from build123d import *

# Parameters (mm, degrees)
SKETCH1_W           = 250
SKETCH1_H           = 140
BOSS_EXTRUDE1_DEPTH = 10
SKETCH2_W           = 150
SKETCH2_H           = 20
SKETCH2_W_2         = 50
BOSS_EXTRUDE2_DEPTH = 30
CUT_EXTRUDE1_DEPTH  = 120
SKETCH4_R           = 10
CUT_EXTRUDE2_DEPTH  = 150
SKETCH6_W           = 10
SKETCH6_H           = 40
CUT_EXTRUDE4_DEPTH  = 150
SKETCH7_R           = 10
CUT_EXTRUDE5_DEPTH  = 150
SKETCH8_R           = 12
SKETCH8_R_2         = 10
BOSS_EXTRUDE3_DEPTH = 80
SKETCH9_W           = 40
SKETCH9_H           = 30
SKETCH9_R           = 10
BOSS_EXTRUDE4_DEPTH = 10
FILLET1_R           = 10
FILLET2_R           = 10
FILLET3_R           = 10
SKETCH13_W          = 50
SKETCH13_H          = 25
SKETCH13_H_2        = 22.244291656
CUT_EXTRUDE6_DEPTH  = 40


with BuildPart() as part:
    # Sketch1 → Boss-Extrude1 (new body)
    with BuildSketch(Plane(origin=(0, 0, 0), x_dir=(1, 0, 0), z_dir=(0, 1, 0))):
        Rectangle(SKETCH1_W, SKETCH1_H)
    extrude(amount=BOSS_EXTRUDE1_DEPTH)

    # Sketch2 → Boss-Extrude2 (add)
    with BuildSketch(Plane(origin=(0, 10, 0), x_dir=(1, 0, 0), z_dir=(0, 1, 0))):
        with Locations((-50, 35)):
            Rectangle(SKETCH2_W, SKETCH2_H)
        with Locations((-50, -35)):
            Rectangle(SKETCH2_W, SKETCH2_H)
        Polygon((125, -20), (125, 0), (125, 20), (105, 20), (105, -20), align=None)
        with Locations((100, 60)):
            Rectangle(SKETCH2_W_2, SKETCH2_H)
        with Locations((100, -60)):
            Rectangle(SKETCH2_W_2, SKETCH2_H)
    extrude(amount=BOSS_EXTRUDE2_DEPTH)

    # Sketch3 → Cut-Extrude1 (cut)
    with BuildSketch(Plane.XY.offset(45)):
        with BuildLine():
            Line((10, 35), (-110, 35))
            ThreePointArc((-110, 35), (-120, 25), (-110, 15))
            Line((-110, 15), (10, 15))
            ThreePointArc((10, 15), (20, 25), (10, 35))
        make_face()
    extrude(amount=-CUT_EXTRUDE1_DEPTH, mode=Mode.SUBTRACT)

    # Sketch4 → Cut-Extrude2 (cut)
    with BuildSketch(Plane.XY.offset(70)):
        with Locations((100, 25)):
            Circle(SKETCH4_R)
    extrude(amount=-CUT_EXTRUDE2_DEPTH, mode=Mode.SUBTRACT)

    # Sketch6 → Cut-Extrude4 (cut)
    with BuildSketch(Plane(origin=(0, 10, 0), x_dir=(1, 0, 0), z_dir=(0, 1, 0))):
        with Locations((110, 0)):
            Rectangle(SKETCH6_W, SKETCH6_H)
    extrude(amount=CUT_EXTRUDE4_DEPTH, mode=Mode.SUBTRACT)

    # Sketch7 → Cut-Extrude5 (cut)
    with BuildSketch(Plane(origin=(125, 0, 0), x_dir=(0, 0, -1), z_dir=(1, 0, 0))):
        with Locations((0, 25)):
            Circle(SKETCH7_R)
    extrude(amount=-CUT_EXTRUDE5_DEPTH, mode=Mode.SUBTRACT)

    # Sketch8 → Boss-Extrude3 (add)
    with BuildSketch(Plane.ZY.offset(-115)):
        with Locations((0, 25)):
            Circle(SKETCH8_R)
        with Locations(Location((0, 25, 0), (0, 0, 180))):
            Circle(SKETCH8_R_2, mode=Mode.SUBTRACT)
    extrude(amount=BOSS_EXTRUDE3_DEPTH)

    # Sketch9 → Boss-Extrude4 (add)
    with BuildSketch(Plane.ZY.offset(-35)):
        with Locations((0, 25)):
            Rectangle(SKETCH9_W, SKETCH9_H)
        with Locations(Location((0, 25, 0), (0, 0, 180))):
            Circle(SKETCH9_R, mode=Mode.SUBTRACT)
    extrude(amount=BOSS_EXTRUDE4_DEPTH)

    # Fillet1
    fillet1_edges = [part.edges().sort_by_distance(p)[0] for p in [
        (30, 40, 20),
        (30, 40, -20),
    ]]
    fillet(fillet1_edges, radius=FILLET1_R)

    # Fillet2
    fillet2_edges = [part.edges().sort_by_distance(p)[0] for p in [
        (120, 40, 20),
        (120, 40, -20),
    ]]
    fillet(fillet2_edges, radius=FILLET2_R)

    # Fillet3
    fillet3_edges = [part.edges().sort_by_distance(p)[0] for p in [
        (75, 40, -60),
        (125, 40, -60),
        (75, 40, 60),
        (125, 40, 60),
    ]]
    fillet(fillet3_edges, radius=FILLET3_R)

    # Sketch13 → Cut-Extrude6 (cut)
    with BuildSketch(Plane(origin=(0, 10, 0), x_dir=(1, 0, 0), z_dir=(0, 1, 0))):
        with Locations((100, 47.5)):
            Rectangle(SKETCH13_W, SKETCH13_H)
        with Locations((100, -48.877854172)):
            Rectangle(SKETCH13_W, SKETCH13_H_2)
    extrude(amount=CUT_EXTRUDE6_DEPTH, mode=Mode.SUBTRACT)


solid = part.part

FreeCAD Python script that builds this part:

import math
import FreeCAD as App
import Part
import Sketcher
from FreeCAD import Vector


def edges_at(feature, points):
    """Names of the edges that pass closest to the given points."""
    edges = feature.Shape.Edges
    near = lambda p: min(range(len(edges)), key=lambda i: edges[i].distToShape(Part.Vertex(*p))[0])
    return sorted({f"Edge{near(p) + 1}" for p in points})


def add_polygon(sketch, points):
    """Adds a closed chain of lines whose ends are joined by coincident constraints."""
    first, n = sketch.GeometryCount, len(points)
    for a, b in zip(points, points[1:] + points[:1]):
        sketch.addGeometry(Part.LineSegment(App.Vector(*a, 0), App.Vector(*b, 0)), False)
    for i in range(n):
        sketch.addConstraint(Sketcher.Constraint("Coincident", first + i, 2, first + (i + 1) % n, 1))

doc = App.newDocument("Part")
params = doc.addObject("Spreadsheet::Sheet", "Params")
for row, (alias, value) in enumerate([
    ("sketch1_width", "250 mm"),
    ("sketch1_height", "140 mm"),
    ("pad1_length", "10 mm"),
    ("sketch2_width", "150 mm"),
    ("sketch2_width2", "20 mm"),
    ("sketch2_width3", "50 mm"),
    ("sketch2_height", "40 mm"),
    ("pad2_length", "30 mm"),
    ("sketch3_radius", "10 mm"),
    ("sketch3_width", "120 mm"),
    ("pocket1_length", "120 mm"),
    ("sketch4_diameter", "20 mm"),
    ("pocket2_length", "150 mm"),
    ("sketch5_width", "10 mm"),
    ("sketch5_height", "40 mm"),
    ("pocket3_length", "150 mm"),
    ("sketch6_diameter", "20 mm"),
    ("pocket4_length", "150 mm"),
    ("sketch7_diameter", "24 mm"),
    ("sketch7_diameter2", "20 mm"),
    ("pad3_length", "80 mm"),
    ("sketch8_diameter", "20 mm"),
    ("sketch8_width", "30 mm"),
    ("sketch8_height", "40 mm"),
    ("pad4_length", "10 mm"),
    ("fillet_radius", "10 mm"),
    ("fillet2_radius", "10 mm"),
    ("fillet3_radius", "10 mm"),
    ("sketch9_width", "50 mm"),
    ("sketch9_height", "25 mm"),
    ("pocket5_length", "40 mm"),
], start=1):
    params.set(f"A{row}", alias)
    params.set(f"B{row}", "=" + value)
    params.setAlias(f"B{row}", alias)

body = doc.addObject("PartDesign::Body", "Body")

# Sketch on XZ plane
sketch1 = body.newObject("Sketcher::SketchObject", "Sketch")
sketch1.AttachmentSupport = (doc.getObject("XZ_Plane"), [""])
sketch1.MapMode = "FlatFace"
add_polygon(sketch1, [(-125, -70), (-125, 70), (125, 70), (125, -70)])  # lines 0-3
sketch1.addConstraint(Sketcher.Constraint("Vertical", 0))
sketch1.addConstraint(Sketcher.Constraint("Horizontal", 1))
sketch1.addConstraint(Sketcher.Constraint("Vertical", 2))
sketch1.addConstraint(Sketcher.Constraint("Horizontal", 3))
sketch1.addConstraint(Sketcher.Constraint("Symmetric", 0, 2, 2, 2, -1, 1))
sketch1.addConstraint(Sketcher.Constraint("DistanceX", 1, 1, 1, 2, 250.0))
sketch1.addConstraint(Sketcher.Constraint("DistanceY", 0, 1, 0, 2, 140.0))
sketch1.setExpression("Constraints[9]", "Params.sketch1_width")
sketch1.setExpression("Constraints[10]", "Params.sketch1_height")
pad1 = body.newObject("PartDesign::Pad", "Pad")
pad1.Profile = sketch1
pad1.setExpression("Length", "Params.pad1_length")
pad1.Reversed = True

# Sketch on XZ plane
sketch2 = body.newObject("Sketcher::SketchObject", "Sketch001")
sketch2.AttachmentSupport = (doc.getObject("XZ_Plane"), [""])
sketch2.MapMode = "FlatFace"
sketch2.AttachmentOffset = App.Placement(Vector(0, 0, -10), App.Rotation())
add_polygon(sketch2, [(-125, -45), (-125, -25), (25, -25), (25, -45)])  # lines 0-3
add_polygon(sketch2, [(-125, 25), (-125, 45), (25, 45), (25, 25)])  # lines 4-7
add_polygon(sketch2, [(125, 20), (125, -20), (105, -20), (105, 20)])  # lines 8-11
add_polygon(sketch2, [(75, -70), (75, -50), (125, -50), (125, -70)])  # lines 12-15
add_polygon(sketch2, [(75, 50), (75, 70), (125, 70), (125, 50)])  # lines 16-19
sketch2.addConstraint(Sketcher.Constraint("Vertical", 0))
sketch2.addConstraint(Sketcher.Constraint("Horizontal", 1))
sketch2.addConstraint(Sketcher.Constraint("Vertical", 2))
sketch2.addConstraint(Sketcher.Constraint("Horizontal", 3))
sketch2.addConstraint(Sketcher.Constraint("Vertical", 4))
sketch2.addConstraint(Sketcher.Constraint("Horizontal", 5))
sketch2.addConstraint(Sketcher.Constraint("Vertical", 6))
sketch2.addConstraint(Sketcher.Constraint("Horizontal", 7))
sketch2.addConstraint(Sketcher.Constraint("Vertical", 8))
sketch2.addConstraint(Sketcher.Constraint("Horizontal", 9))
sketch2.addConstraint(Sketcher.Constraint("Vertical", 10))
sketch2.addConstraint(Sketcher.Constraint("Horizontal", 11))
sketch2.addConstraint(Sketcher.Constraint("Vertical", 12))
sketch2.addConstraint(Sketcher.Constraint("Horizontal", 13))
sketch2.addConstraint(Sketcher.Constraint("Vertical", 14))
sketch2.addConstraint(Sketcher.Constraint("Horizontal", 15))
sketch2.addConstraint(Sketcher.Constraint("Vertical", 16))
sketch2.addConstraint(Sketcher.Constraint("Horizontal", 17))
sketch2.addConstraint(Sketcher.Constraint("Vertical", 18))
sketch2.addConstraint(Sketcher.Constraint("Horizontal", 19))
sketch2.addConstraint(Sketcher.Constraint("Symmetric", 3, 2, 4, 2, -1))
sketch2.addConstraint(Sketcher.Constraint("Symmetric", 1, 2, 6, 2, -1))
sketch2.addConstraint(Sketcher.Constraint("Symmetric", 15, 2, 16, 2, -1))
sketch2.addConstraint(Sketcher.Constraint("Symmetric", 13, 2, 18, 2, -1))
sketch2.addConstraint(Sketcher.Constraint("Vertical", 11, 2, 13, 2))
sketch2.addConstraint(Sketcher.Constraint("Equal", 11, 0))
sketch2.addConstraint(Sketcher.Constraint("Equal", 6, 12))
sketch2.addConstraint(Sketcher.Constraint("DistanceX", 1, 1, 1, 2, 150.0))
sketch2.addConstraint(Sketcher.Constraint("DistanceX", 9, 2, 9, 1, 20.0))
sketch2.addConstraint(Sketcher.Constraint("DistanceX", 13, 1, 13, 2, 50.0))
sketch2.addConstraint(Sketcher.Constraint("DistanceY", 8, 2, 8, 1, 40.0))
sketch2.addConstraint(Sketcher.Constraint("DistanceX", 0, 2, -1, 1, 125.0))
sketch2.addConstraint(Sketcher.Constraint("DistanceY", 0, 2, -1, 1, 25.0))
sketch2.addConstraint(Sketcher.Constraint("DistanceX", -1, 1, 8, 2, 125.0))
sketch2.addConstraint(Sketcher.Constraint("DistanceY", 8, 2, -1, 1, 20.0))
sketch2.addConstraint(Sketcher.Constraint("DistanceY", 12, 2, -1, 1, 50.0))
sketch2.setExpression("Constraints[47]", "Params.sketch2_width")
sketch2.setExpression("Constraints[48]", "Params.sketch2_width2")
sketch2.setExpression("Constraints[49]", "Params.sketch2_width3")
sketch2.setExpression("Constraints[50]", "Params.sketch2_height")
pad2 = body.newObject("PartDesign::Pad", "Pad001")
pad2.Profile = sketch2
pad2.setExpression("Length", "Params.pad2_length")
pad2.Reversed = True

# Sketch on XY plane
sketch3 = body.newObject("Sketcher::SketchObject", "Sketch002")
sketch3.AttachmentSupport = (doc.getObject("XY_Plane"), [""])
sketch3.MapMode = "FlatFace"
sketch3.AttachmentOffset = App.Placement(Vector(0, 0, 45), App.Rotation())
sketch3.addGeometry(Part.LineSegment(Vector(10, 35, 0), Vector(-110, 35, 0)), False)
sketch3.addGeometry(Part.ArcOfCircle(Part.Circle(Vector(-110, 25, 0), Vector(0, 0, 1), 10), math.radians(90), math.radians(270)), False)
sketch3.addGeometry(Part.LineSegment(Vector(-110, 15, 0), Vector(10, 15, 0)), False)
sketch3.addGeometry(Part.ArcOfCircle(Part.Circle(Vector(10, 25, 0), Vector(0, 0, 1), 10), math.radians(-90), math.radians(90)), False)
sketch3.addConstraint(Sketcher.Constraint("Tangent", 0, 2, 1, 1))
sketch3.addConstraint(Sketcher.Constraint("Tangent", 1, 2, 2, 1))
sketch3.addConstraint(Sketcher.Constraint("Tangent", 2, 2, 3, 1))
sketch3.addConstraint(Sketcher.Constraint("Tangent", 3, 2, 0, 1))
sketch3.addConstraint(Sketcher.Constraint("Horizontal", 0))
sketch3.addConstraint(Sketcher.Constraint("Horizontal", 2))
sketch3.addConstraint(Sketcher.Constraint("Radius", 1, 10.0))
sketch3.addConstraint(Sketcher.Constraint("DistanceX", 0, 2, 0, 1, 120.0))
sketch3.addConstraint(Sketcher.Constraint("DistanceX", 1, 3, -1, 1, 110.0))
sketch3.addConstraint(Sketcher.Constraint("DistanceY", -1, 1, 1, 3, 25.0))
sketch3.setExpression("Constraints[6]", "Params.sketch3_radius")
sketch3.setExpression("Constraints[7]", "Params.sketch3_width")
pocket1 = body.newObject("PartDesign::Pocket", "Pocket")
pocket1.Profile = sketch3
pocket1.setExpression("Length", "Params.pocket1_length")

# Sketch on XY plane
sketch4 = body.newObject("Sketcher::SketchObject", "Sketch003")
sketch4.AttachmentSupport = (doc.getObject("XY_Plane"), [""])
sketch4.MapMode = "FlatFace"
sketch4.AttachmentOffset = App.Placement(Vector(0, 0, 70), App.Rotation())
sketch4.addGeometry(Part.Circle(Vector(100, 25, 0), Vector(0, 0, 1), 10), False)
sketch4.addConstraint(Sketcher.Constraint("Diameter", 0, 20.0))
sketch4.addConstraint(Sketcher.Constraint("DistanceX", -1, 1, 0, 3, 100.0))
sketch4.addConstraint(Sketcher.Constraint("DistanceY", -1, 1, 0, 3, 25.0))
sketch4.setExpression("Constraints[0]", "Params.sketch4_diameter")
pocket2 = body.newObject("PartDesign::Pocket", "Pocket001")
pocket2.Profile = sketch4
pocket2.setExpression("Length", "Params.pocket2_length")

# Sketch on XZ plane
sketch5 = body.newObject("Sketcher::SketchObject", "Sketch004")
sketch5.AttachmentSupport = (doc.getObject("XZ_Plane"), [""])
sketch5.MapMode = "FlatFace"
sketch5.AttachmentOffset = App.Placement(Vector(0, 0, -10), App.Rotation())
add_polygon(sketch5, [(105, -20), (105, 20), (115, 20), (115, -20)])  # lines 0-3
sketch5.addConstraint(Sketcher.Constraint("Vertical", 0))
sketch5.addConstraint(Sketcher.Constraint("Horizontal", 1))
sketch5.addConstraint(Sketcher.Constraint("Vertical", 2))
sketch5.addConstraint(Sketcher.Constraint("Horizontal", 3))
sketch5.addConstraint(Sketcher.Constraint("DistanceX", 1, 1, 1, 2, 10.0))
sketch5.addConstraint(Sketcher.Constraint("DistanceY", 0, 1, 0, 2, 40.0))
sketch5.addConstraint(Sketcher.Constraint("DistanceX", -1, 1, 0, 2, 105.0))
sketch5.addConstraint(Sketcher.Constraint("DistanceY", -1, 1, 0, 2, 20.0))
sketch5.setExpression("Constraints[8]", "Params.sketch5_width")
sketch5.setExpression("Constraints[9]", "Params.sketch5_height")
pocket3 = body.newObject("PartDesign::Pocket", "Pocket002")
pocket3.Profile = sketch5
pocket3.setExpression("Length", "Params.pocket3_length")

# Sketch on YZ plane
sketch6 = body.newObject("Sketcher::SketchObject", "Sketch005")
sketch6.AttachmentSupport = (doc.getObject("YZ_Plane"), [""])
sketch6.MapMode = "FlatFace"
sketch6.AttachmentOffset = App.Placement(Vector(0, 0, 125), App.Rotation())
sketch6.addGeometry(Part.Circle(Vector(25, 0, 0), Vector(0, 0, 1), 10), False)
sketch6.addConstraint(Sketcher.Constraint("PointOnObject", 0, 3, -1))
sketch6.addConstraint(Sketcher.Constraint("Diameter", 0, 20.0))
sketch6.addConstraint(Sketcher.Constraint("DistanceX", -1, 1, 0, 3, 25.0))
sketch6.setExpression("Constraints[1]", "Params.sketch6_diameter")
pocket4 = body.newObject("PartDesign::Pocket", "Pocket003")
pocket4.Profile = sketch6
pocket4.setExpression("Length", "Params.pocket4_length")

# Sketch on YZ plane
sketch7 = body.newObject("Sketcher::SketchObject", "Sketch006")
sketch7.AttachmentSupport = (doc.getObject("YZ_Plane"), [""])
sketch7.MapMode = "FlatFace"
sketch7.AttachmentOffset = App.Placement(Vector(0, 0, 115), App.Rotation())
sketch7.addGeometry(Part.Circle(Vector(25, 0, 0), Vector(0, 0, 1), 12), False)
sketch7.addGeometry(Part.Circle(Vector(25, 0, 0), Vector(0, 0, 1), 10), False)
sketch7.addConstraint(Sketcher.Constraint("Coincident", 1, 3, 0, 3))
sketch7.addConstraint(Sketcher.Constraint("PointOnObject", 0, 3, -1))
sketch7.addConstraint(Sketcher.Constraint("Diameter", 0, 24.0))
sketch7.addConstraint(Sketcher.Constraint("Diameter", 1, 20.0))
sketch7.addConstraint(Sketcher.Constraint("DistanceX", -1, 1, 0, 3, 25.0))
sketch7.setExpression("Constraints[2]", "Params.sketch7_diameter")
sketch7.setExpression("Constraints[3]", "Params.sketch7_diameter2")
pad3 = body.newObject("PartDesign::Pad", "Pad002")
pad3.Profile = sketch7
pad3.setExpression("Length", "Params.pad3_length")
pad3.Reversed = True

# Sketch on YZ plane
sketch8 = body.newObject("Sketcher::SketchObject", "Sketch007")
sketch8.AttachmentSupport = (doc.getObject("YZ_Plane"), [""])
sketch8.MapMode = "FlatFace"
sketch8.AttachmentOffset = App.Placement(Vector(0, 0, 35), App.Rotation())
add_polygon(sketch8, [(40, -20), (10, -20), (10, 20), (40, 20)])  # lines 0-3
sketch8.addGeometry(Part.Circle(Vector(25, 0, 0), Vector(0, 0, 1), 10), False)  # 4
sketch8.addConstraint(Sketcher.Constraint("Horizontal", 0))
sketch8.addConstraint(Sketcher.Constraint("Vertical", 1))
sketch8.addConstraint(Sketcher.Constraint("Horizontal", 2))
sketch8.addConstraint(Sketcher.Constraint("Vertical", 3))
sketch8.addConstraint(Sketcher.Constraint("PointOnObject", 4, 3, -1))
sketch8.addConstraint(Sketcher.Constraint("Diameter", 4, 20.0))
sketch8.addConstraint(Sketcher.Constraint("DistanceX", 0, 2, 0, 1, 30.0))
sketch8.addConstraint(Sketcher.Constraint("DistanceY", 1, 1, 1, 2, 40.0))
sketch8.addConstraint(Sketcher.Constraint("DistanceX", -1, 1, 4, 3, 25.0))
sketch8.addConstraint(Sketcher.Constraint("DistanceX", -1, 1, 0, 2, 10.0))
sketch8.addConstraint(Sketcher.Constraint("DistanceY", 0, 2, -1, 1, 20.0))
sketch8.setExpression("Constraints[9]", "Params.sketch8_diameter")
sketch8.setExpression("Constraints[10]", "Params.sketch8_width")
sketch8.setExpression("Constraints[11]", "Params.sketch8_height")
pad4 = body.newObject("PartDesign::Pad", "Pad003")
pad4.Profile = sketch8
pad4.setExpression("Length", "Params.pad4_length")
pad4.Reversed = True
doc.recompute()

fillet = body.newObject("PartDesign::Fillet", "Fillet")
fillet.Base = (pad4, edges_at(pad4, [(30, 40, 20), (30, 40, -20)]))
fillet.setExpression("Radius", "Params.fillet_radius")
doc.recompute()

fillet2 = body.newObject("PartDesign::Fillet", "Fillet001")
fillet2.Base = (fillet, edges_at(fillet, [(120, 40, 20), (120, 40, -20)]))
fillet2.setExpression("Radius", "Params.fillet2_radius")
doc.recompute()

fillet3 = body.newObject("PartDesign::Fillet", "Fillet002")
fillet3.Base = (fillet2, edges_at(fillet2, [
    (75, 40, -60),
    (125, 40, -60),
    (75, 40, 60),
    (125, 40, 60),
]))
fillet3.setExpression("Radius", "Params.fillet3_radius")

# Sketch on XZ plane
sketch9 = body.newObject("Sketcher::SketchObject", "Sketch008")
sketch9.AttachmentSupport = (doc.getObject("XZ_Plane"), [""])
sketch9.MapMode = "FlatFace"
sketch9.AttachmentOffset = App.Placement(Vector(0, 0, -10), App.Rotation())
add_polygon(sketch9, [(75, -60), (75, -35), (125, -35), (125, -60)])  # lines 0-3
add_polygon(sketch9, [(75, 38), (75, 60), (125, 60), (125, 38)])  # lines 4-7
sketch9.addConstraint(Sketcher.Constraint("Vertical", 0))
sketch9.addConstraint(Sketcher.Constraint("Horizontal", 1))
sketch9.addConstraint(Sketcher.Constraint("Vertical", 2))
sketch9.addConstraint(Sketcher.Constraint("Horizontal", 3))
sketch9.addConstraint(Sketcher.Constraint("Vertical", 4))
sketch9.addConstraint(Sketcher.Constraint("Horizontal", 5))
sketch9.addConstraint(Sketcher.Constraint("Vertical", 6))
sketch9.addConstraint(Sketcher.Constraint("Horizontal", 7))
sketch9.addConstraint(Sketcher.Constraint("Symmetric", 3, 2, 4, 2, -1))
sketch9.addConstraint(Sketcher.Constraint("Vertical", 2, 2, 5, 2))
sketch9.addConstraint(Sketcher.Constraint("DistanceX", 1, 1, 1, 2, 50.0))
sketch9.addConstraint(Sketcher.Constraint("DistanceY", 0, 1, 0, 2, 25.0))
sketch9.addConstraint(Sketcher.Constraint("DistanceX", -1, 1, 0, 2, 75.0))
sketch9.addConstraint(Sketcher.Constraint("DistanceY", 0, 2, -1, 1, 35.0))
sketch9.addConstraint(Sketcher.Constraint("DistanceY", 4, 1, 4, 2, 22.244292))
sketch9.setExpression("Constraints[18]", "Params.sketch9_width")
sketch9.setExpression("Constraints[19]", "Params.sketch9_height")
pocket5 = body.newObject("PartDesign::Pocket", "Pocket004")
pocket5.Profile = sketch9
pocket5.setExpression("Length", "Params.pocket5_length")

doc.recompute()
